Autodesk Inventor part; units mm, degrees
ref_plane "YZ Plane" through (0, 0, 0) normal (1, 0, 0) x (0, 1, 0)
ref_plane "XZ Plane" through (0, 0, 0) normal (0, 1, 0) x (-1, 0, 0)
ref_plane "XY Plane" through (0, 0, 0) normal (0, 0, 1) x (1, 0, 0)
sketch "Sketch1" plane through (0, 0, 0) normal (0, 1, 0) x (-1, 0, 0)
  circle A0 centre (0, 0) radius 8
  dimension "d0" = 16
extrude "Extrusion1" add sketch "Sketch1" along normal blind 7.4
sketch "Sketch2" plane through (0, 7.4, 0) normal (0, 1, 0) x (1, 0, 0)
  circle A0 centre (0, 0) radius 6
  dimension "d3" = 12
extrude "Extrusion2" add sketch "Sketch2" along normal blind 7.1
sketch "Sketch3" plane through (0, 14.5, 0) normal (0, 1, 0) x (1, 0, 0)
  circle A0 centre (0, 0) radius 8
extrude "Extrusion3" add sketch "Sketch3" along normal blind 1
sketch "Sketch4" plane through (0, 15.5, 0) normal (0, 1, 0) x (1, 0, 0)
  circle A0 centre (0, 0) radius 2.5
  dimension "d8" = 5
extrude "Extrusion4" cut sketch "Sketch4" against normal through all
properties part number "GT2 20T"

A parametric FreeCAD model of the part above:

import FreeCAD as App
import Part
import Sketcher
Q = App.Units.Quantity

doc = App.newDocument("Part")
params = doc.addObject("Spreadsheet::Sheet", "Params")
for row, (alias, value) in enumerate([
    ("sketch1_diameter", "16 mm"),
    ("pad1_length", "7.4 mm"),
    ("sketch2_diameter", "12 mm"),
    ("pad2_length", "7.1 mm"),
    ("sketch3_diameter", "16 mm"),
    ("pad3_length", "1 mm"),
    ("sketch4_diameter", "5 mm"),
], start=1):
    params.set(f"A{row}", alias)
    params.set(f"B{row}", "=" + value)
    params.setAlias(f"B{row}", alias)

body = doc.addObject("PartDesign::Body", "Body")

# Sketch on XZ plane
sketch1 = body.newObject("Sketcher::SketchObject", "Sketch")
sketch1.AttachmentSupport = (doc.getObject("XZ_Plane"), [""])
sketch1.MapMode = "FlatFace"
sketch1.addGeometry(Part.Circle(App.Vector(0, 0, 0), App.Vector(0, 0, 1), 8), False)
sketch1.addConstraint(Sketcher.Constraint("Coincident", 0, 3, -1, 1))
sketch1.addConstraint(Sketcher.Constraint("Diameter", 0, Q("16 mm")))
sketch1.setExpression("Constraints[1]", "Params.sketch1_diameter")
pad1 = body.newObject("PartDesign::Pad", "Pad")
pad1.Profile = sketch1
pad1.setExpression("Length", "Params.pad1_length")
pad1.Reversed = True

# Sketch on XZ plane
sketch2 = body.newObject("Sketcher::SketchObject", "Sketch001")
sketch2.AttachmentSupport = (doc.getObject("XZ_Plane"), [""])
sketch2.MapMode = "FlatFace"
sketch2.AttachmentOffset = App.Placement(App.Vector(0, 0, -7.4), App.Rotation())
sketch2.addGeometry(Part.Circle(App.Vector(0, 0, 0), App.Vector(0, 0, 1), 6), False)
sketch2.addConstraint(Sketcher.Constraint("Coincident", 0, 3, -1, 1))
sketch2.addConstraint(Sketcher.Constraint("Diameter", 0, Q("12 mm")))
sketch2.setExpression("Constraints[1]", "Params.sketch2_diameter")
pad2 = body.newObject("PartDesign::Pad", "Pad001")
pad2.Profile = sketch2
pad2.setExpression("Length", "Params.pad2_length")
pad2.Reversed = True

# Sketch on XZ plane
sketch3 = body.newObject("Sketcher::SketchObject", "Sketch002")
sketch3.AttachmentSupport = (doc.getObject("XZ_Plane"), [""])
sketch3.MapMode = "FlatFace"
sketch3.AttachmentOffset = App.Placement(App.Vector(0, 0, -14.5), App.Rotation())
sketch3.addGeometry(Part.Circle(App.Vector(0, 0, 0), App.Vector(0, 0, 1), 8), False)
sketch3.addConstraint(Sketcher.Constraint("Coincident", 0, 3, -1, 1))
sketch3.addConstraint(Sketcher.Constraint("Diameter", 0, Q("16 mm")))
sketch3.setExpression("Constraints[1]", "Params.sketch3_diameter")
pad3 = body.newObject("PartDesign::Pad", "Pad002")
pad3.Profile = sketch3
pad3.setExpression("Length", "Params.pad3_length")
pad3.Reversed = True

# Sketch on XZ plane
sketch4 = body.newObject("Sketcher::SketchObject", "Sketch003")
sketch4.AttachmentSupport = (doc.getObject("XZ_Plane"), [""])
sketch4.MapMode = "FlatFace"
sketch4.AttachmentOffset = App.Placement(App.Vector(0, 0, -15.5), App.Rotation())
sketch4.addGeometry(Part.Circle(App.Vector(0, 0, 0), App.Vector(0, 0, 1), 2.5), False)
sketch4.addConstraint(Sketcher.Constraint("Coincident", 0, 3, -1, 1))
sketch4.addConstraint(Sketcher.Constraint("Diameter", 0, Q("5 mm")))
sketch4.setExpression("Constraints[1]", "Params.sketch4_diameter")
pocket1 = body.newObject("PartDesign::Pocket", "Pocket")
pocket1.Profile = sketch4
pocket1.Type = "ThroughAll"
pocket1.Reversed = True

doc.recompute()
